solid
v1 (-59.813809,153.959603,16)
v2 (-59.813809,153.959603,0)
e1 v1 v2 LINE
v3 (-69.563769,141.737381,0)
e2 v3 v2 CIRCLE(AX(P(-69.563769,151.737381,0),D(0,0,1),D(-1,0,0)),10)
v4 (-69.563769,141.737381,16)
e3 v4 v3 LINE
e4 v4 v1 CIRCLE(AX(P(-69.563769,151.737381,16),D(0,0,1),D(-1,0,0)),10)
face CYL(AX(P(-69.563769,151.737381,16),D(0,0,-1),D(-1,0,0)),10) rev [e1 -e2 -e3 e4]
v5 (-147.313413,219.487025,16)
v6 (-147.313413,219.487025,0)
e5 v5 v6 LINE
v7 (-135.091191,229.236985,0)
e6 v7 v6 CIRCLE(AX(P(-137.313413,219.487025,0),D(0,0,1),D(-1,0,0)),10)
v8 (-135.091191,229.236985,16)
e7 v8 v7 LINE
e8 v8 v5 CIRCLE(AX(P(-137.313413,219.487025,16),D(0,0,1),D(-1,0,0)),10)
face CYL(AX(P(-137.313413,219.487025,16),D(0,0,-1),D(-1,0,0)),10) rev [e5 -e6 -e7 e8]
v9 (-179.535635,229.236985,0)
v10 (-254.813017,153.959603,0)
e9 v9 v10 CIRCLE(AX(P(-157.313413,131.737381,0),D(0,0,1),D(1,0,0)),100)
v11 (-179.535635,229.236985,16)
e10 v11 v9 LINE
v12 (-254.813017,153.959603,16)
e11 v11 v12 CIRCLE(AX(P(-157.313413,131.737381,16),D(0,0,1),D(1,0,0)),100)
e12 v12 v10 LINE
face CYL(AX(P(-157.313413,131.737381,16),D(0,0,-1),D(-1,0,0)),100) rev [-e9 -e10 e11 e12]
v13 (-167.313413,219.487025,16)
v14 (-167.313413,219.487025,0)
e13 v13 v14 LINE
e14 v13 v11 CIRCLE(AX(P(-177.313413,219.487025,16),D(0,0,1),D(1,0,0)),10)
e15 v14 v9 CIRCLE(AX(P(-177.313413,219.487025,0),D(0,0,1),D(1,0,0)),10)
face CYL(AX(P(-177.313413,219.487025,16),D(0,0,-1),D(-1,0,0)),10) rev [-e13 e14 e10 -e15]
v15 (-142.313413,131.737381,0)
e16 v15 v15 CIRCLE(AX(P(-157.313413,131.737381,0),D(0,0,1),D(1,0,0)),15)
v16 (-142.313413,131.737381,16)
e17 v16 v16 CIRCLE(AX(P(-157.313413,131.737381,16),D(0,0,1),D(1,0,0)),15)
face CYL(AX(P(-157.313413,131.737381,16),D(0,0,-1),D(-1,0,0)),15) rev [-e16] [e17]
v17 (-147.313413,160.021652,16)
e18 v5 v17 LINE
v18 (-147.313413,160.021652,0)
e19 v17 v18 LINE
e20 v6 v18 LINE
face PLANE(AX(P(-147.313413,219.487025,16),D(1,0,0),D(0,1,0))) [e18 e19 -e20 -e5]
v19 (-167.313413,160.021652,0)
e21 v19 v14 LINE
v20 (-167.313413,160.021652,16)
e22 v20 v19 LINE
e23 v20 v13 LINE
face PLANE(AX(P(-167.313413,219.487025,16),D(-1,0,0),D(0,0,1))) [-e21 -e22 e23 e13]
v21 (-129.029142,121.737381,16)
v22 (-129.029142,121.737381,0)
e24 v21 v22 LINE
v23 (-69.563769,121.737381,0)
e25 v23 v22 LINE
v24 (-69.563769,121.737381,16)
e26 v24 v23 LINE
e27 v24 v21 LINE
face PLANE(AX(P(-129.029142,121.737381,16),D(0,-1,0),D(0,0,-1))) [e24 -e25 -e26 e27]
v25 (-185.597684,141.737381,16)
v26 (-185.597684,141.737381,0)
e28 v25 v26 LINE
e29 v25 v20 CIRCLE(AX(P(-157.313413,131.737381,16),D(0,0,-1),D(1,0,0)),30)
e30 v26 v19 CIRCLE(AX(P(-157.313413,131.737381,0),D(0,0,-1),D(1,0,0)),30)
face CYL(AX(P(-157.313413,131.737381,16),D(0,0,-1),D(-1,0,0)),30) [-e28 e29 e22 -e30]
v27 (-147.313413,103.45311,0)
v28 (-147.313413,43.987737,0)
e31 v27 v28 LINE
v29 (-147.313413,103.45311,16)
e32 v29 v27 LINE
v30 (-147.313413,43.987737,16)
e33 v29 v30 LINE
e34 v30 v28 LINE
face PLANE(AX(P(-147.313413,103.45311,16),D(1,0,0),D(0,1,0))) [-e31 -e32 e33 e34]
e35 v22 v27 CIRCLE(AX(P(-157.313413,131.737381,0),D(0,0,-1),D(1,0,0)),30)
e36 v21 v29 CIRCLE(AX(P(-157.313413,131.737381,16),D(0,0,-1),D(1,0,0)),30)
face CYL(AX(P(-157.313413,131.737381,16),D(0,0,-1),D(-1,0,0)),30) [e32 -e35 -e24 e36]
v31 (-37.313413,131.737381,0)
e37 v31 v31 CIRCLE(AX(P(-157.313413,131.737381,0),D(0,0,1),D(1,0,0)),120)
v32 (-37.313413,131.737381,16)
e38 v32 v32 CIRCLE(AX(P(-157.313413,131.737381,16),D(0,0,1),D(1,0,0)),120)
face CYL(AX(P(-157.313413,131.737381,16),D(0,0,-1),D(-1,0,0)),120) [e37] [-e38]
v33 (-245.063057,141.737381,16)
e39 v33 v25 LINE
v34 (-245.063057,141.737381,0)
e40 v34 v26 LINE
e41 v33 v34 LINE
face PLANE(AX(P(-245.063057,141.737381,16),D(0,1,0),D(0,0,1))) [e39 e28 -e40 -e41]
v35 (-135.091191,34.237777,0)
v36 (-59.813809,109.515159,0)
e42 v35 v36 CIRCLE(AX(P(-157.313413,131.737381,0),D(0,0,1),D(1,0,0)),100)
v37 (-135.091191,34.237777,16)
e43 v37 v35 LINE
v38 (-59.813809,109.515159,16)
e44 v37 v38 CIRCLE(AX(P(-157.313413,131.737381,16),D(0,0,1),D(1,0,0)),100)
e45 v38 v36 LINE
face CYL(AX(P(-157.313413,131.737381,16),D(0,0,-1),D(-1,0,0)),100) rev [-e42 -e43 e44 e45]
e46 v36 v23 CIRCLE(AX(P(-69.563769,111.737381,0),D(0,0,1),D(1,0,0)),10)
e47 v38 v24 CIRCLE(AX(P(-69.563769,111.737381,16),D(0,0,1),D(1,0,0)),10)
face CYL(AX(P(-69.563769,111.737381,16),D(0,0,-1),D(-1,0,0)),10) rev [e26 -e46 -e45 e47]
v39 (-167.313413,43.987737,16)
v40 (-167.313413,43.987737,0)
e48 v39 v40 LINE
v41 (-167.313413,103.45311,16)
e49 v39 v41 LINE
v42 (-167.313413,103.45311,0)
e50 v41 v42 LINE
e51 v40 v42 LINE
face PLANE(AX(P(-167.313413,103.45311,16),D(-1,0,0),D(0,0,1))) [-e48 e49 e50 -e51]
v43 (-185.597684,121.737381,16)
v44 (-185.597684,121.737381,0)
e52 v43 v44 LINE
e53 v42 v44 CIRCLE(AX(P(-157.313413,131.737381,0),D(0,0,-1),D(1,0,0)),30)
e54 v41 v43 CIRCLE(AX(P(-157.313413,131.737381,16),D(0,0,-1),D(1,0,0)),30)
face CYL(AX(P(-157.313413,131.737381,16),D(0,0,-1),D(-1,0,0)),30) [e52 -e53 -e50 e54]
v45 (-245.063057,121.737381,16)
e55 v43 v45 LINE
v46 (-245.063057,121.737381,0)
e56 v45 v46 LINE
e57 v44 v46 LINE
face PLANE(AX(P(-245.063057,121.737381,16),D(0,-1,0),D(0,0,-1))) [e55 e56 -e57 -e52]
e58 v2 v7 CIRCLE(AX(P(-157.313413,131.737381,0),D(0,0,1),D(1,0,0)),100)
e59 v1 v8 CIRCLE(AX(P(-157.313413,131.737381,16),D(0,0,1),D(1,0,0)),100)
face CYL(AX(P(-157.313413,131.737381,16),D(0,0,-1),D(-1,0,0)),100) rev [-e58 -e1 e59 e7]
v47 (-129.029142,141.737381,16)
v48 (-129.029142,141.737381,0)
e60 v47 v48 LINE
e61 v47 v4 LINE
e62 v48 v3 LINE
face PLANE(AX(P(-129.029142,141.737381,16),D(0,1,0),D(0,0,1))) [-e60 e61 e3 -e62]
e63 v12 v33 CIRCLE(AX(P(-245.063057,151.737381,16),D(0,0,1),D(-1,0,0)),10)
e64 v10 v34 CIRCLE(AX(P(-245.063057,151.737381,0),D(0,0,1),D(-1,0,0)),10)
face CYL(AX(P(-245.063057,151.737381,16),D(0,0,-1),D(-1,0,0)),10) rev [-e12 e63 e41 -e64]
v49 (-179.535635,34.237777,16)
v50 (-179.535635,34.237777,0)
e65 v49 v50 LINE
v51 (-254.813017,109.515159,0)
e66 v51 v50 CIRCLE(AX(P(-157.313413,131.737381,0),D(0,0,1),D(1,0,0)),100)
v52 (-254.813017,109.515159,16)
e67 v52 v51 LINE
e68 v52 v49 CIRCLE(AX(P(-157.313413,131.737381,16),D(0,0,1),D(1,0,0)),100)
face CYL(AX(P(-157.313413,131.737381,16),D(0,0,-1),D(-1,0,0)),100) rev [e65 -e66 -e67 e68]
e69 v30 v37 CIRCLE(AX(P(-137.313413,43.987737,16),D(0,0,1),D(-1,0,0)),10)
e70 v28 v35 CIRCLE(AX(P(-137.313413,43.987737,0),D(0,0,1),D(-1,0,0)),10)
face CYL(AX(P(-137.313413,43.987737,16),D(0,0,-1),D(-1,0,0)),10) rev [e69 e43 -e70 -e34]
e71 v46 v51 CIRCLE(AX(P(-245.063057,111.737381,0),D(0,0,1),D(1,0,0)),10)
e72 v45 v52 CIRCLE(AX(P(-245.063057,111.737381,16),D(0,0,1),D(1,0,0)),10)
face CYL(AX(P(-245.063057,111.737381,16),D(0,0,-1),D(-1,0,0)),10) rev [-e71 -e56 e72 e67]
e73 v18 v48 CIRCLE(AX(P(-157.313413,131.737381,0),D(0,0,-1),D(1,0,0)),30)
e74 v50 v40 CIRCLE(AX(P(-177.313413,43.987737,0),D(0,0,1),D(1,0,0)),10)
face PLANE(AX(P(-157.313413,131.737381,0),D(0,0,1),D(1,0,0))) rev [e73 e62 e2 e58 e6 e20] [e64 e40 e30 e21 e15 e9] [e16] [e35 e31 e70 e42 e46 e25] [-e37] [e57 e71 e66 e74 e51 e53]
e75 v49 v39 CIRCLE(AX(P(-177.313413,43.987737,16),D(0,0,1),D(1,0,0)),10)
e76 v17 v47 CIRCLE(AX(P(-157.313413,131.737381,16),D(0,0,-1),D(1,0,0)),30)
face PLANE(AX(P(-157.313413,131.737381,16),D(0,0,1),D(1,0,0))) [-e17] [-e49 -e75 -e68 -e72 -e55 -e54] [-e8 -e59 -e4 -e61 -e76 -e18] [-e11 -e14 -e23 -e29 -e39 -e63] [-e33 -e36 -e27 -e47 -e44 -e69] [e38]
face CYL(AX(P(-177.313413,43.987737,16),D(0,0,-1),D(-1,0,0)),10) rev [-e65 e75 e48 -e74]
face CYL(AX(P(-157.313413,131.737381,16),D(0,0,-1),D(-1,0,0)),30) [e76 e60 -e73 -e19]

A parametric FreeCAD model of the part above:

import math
import FreeCAD as App
import Part
import Sketcher
from FreeCAD import Vector
Q = App.Units.Quantity

doc = App.newDocument("Part")
body = doc.addObject("PartDesign::Body", "Body")

# Sketch on XY plane
sketch1 = body.newObject("Sketcher::SketchObject", "Sketch")
sketch1.AttachmentSupport = (doc.getObject("XY_Plane"), [""])
sketch1.MapMode = "FlatFace"
sketch1.addGeometry([
    Part.Circle(Vector(-157, 132, 0), Vector(0, 0, 1), 120),  # 0
    Part.ArcOfCircle(Part.Circle(Vector(-157, 132, 0), Vector(0, 0, 1), 30), math.radians(-161), math.radians(-109)),  # 1
    Part.LineSegment(Vector(-167, 103, 0), Vector(-167, 44, 0)),  # 2
    Part.ArcOfCircle(Part.Circle(Vector(-177, 44, 0), Vector(0, 0, 1), 10), math.radians(-103), math.radians(0)),  # 3
    Part.ArcOfCircle(Part.Circle(Vector(-157, 132, 0), Vector(0, 0, 1), 100), math.radians(-167), math.radians(-103)),  # 4
    Part.ArcOfCircle(Part.Circle(Vector(-245, 112, 0), Vector(0, 0, 1), 10), math.radians(90), math.radians(193)),  # 5
    Part.LineSegment(Vector(-245, 122, 0), Vector(-186, 122, 0)),  # 6
    Part.Circle(Vector(-157, 132, 0), Vector(0, 0, 1), 15),  # 7
    Part.LineSegment(Vector(-147, 44, 0), Vector(-147, 103, 0)),  # 8
    Part.ArcOfCircle(Part.Circle(Vector(-157, 132, 0), Vector(0, 0, 1), 30), math.radians(-71), math.radians(-19)),  # 9
    Part.LineSegment(Vector(-129, 122, 0), Vector(-70, 122, 0)),  # 10
    Part.ArcOfCircle(Part.Circle(Vector(-70, 112, 0), Vector(0, 0, 1), 10), math.radians(-13), math.radians(90)),  # 11
    Part.ArcOfCircle(Part.Circle(Vector(-157, 132, 0), Vector(0, 0, 1), 100), math.radians(-77), math.radians(-13)),  # 12
    Part.ArcOfCircle(Part.Circle(Vector(-137, 44, 0), Vector(0, 0, 1), 10), math.radians(-180), math.radians(-77)),  # 13
    Part.LineSegment(Vector(-186, 142, 0), Vector(-245, 142, 0)),  # 14
    Part.ArcOfCircle(Part.Circle(Vector(-245, 152, 0), Vector(0, 0, 1), 10), math.radians(167), math.radians(270)),  # 15
    Part.ArcOfCircle(Part.Circle(Vector(-157, 132, 0), Vector(0, 0, 1), 100), math.radians(103), math.radians(167)),  # 16
    Part.ArcOfCircle(Part.Circle(Vector(-177, 219, 0), Vector(0, 0, 1), 10), math.radians(0), math.radians(103)),  # 17
    Part.LineSegment(Vector(-167, 219, 0), Vector(-167, 160, 0)),  # 18
    Part.ArcOfCircle(Part.Circle(Vector(-157, 132, 0), Vector(0, 0, 1), 30), math.radians(109), math.radians(161)),  # 19
    Part.LineSegment(Vector(-147, 160, 0), Vector(-147, 219, 0)),  # 20
    Part.ArcOfCircle(Part.Circle(Vector(-137, 219, 0), Vector(0, 0, 1), 10), math.radians(77), math.radians(180)),  # 21
    Part.ArcOfCircle(Part.Circle(Vector(-157, 132, 0), Vector(0, 0, 1), 100), math.radians(13), math.radians(77)),  # 22
    Part.ArcOfCircle(Part.Circle(Vector(-70, 152, 0), Vector(0, 0, 1), 10), math.radians(-90), math.radians(13)),  # 23
    Part.LineSegment(Vector(-70, 142, 0), Vector(-129, 142, 0)),  # 24
    Part.ArcOfCircle(Part.Circle(Vector(-157, 132, 0), Vector(0, 0, 1), 30), math.radians(19), math.radians(71)),  # 25
], False)
sketch1.addConstraint([
    Sketcher.Constraint("Coincident", 1, 2, 2, 1),
    Sketcher.Constraint("Tangent", 2, 2, 3, 2),
    Sketcher.Constraint("Tangent", 3, 1, 4, 2),
    Sketcher.Constraint("Tangent", 4, 1, 5, 2),
    Sketcher.Constraint("Tangent", 5, 1, 6, 1),
    Sketcher.Constraint("Coincident", 6, 2, 1, 1),
    Sketcher.Constraint("Coincident", 8, 2, 9, 1),
    Sketcher.Constraint("Coincident", 9, 2, 10, 1),
    Sketcher.Constraint("Tangent", 10, 2, 11, 2),
    Sketcher.Constraint("Tangent", 11, 1, 12, 2),
    Sketcher.Constraint("Tangent", 12, 1, 13, 2),
    Sketcher.Constraint("Tangent", 13, 1, 8, 1),
    Sketcher.Constraint("Tangent", 14, 2, 15, 2),
    Sketcher.Constraint("Tangent", 15, 1, 16, 2),
    Sketcher.Constraint("Tangent", 16, 1, 17, 2),
    Sketcher.Constraint("Tangent", 17, 1, 18, 1),
    Sketcher.Constraint("Coincident", 18, 2, 19, 1),
    Sketcher.Constraint("Coincident", 19, 2, 14, 1),
    Sketcher.Constraint("Tangent", 20, 2, 21, 2),
    Sketcher.Constraint("Tangent", 21, 1, 22, 2),
    Sketcher.Constraint("Tangent", 22, 1, 23, 2),
    Sketcher.Constraint("Tangent", 23, 1, 24, 1),
    Sketcher.Constraint("Coincident", 24, 2, 25, 1),
    Sketcher.Constraint("Coincident", 25, 2, 20, 1),
    Sketcher.Constraint("Vertical", 2),
    Sketcher.Constraint("Horizontal", 6),
    Sketcher.Constraint("Vertical", 8),
    Sketcher.Constraint("Horizontal", 10),
    Sketcher.Constraint("Horizontal", 14),
    Sketcher.Constraint("Vertical", 18),
    Sketcher.Constraint("Vertical", 20),
    Sketcher.Constraint("Horizontal", 24),
    Sketcher.Constraint("Coincident", 1, 3, 0, 3),
    Sketcher.Constraint("Coincident", 4, 3, 0, 3),
    Sketcher.Constraint("Coincident", 7, 3, 0, 3),
    Sketcher.Constraint("Coincident", 9, 3, 0, 3),
    Sketcher.Constraint("Coincident", 12, 3, 0, 3),
    Sketcher.Constraint("Coincident", 16, 3, 0, 3),
    Sketcher.Constraint("Coincident", 19, 3, 0, 3),
    Sketcher.Constraint("Coincident", 22, 3, 0, 3),
    Sketcher.Constraint("Coincident", 25, 3, 0, 3),
    Sketcher.Constraint("Equal", 3, 5),
    Sketcher.Constraint("Equal", 1, 9),
    Sketcher.Constraint("Equal", 5, 11),
    Sketcher.Constraint("Equal", 4, 12),
    Sketcher.Constraint("Equal", 11, 13),
    Sketcher.Constraint("Equal", 13, 15),
    Sketcher.Constraint("Equal", 12, 16),
    Sketcher.Constraint("Equal", 15, 17),
    Sketcher.Constraint("Equal", 9, 19),
    Sketcher.Constraint("Equal", 17, 21),
    Sketcher.Constraint("Equal", 16, 22),
    Sketcher.Constraint("Equal", 21, 23),
    Sketcher.Constraint("Equal", 19, 25),
    Sketcher.Constraint("Horizontal", 5, 3, 11, 3),
    Sketcher.Constraint("Horizontal", 3, 3, 13, 3),
    Sketcher.Constraint("Horizontal", 17, 3, 21, 3),
    Sketcher.Constraint("Horizontal", 15, 3, 23, 3),
    Sketcher.Constraint("Vertical", 5, 3, 15, 3),
    Sketcher.Constraint("Vertical", 3, 3, 17, 3),
    Sketcher.Constraint("Equal", 24, 2),
    Sketcher.Constraint("Diameter", 0, Q("240 mm")),
    Sketcher.Constraint("Diameter", 7, Q("30 mm")),
    Sketcher.Constraint("Radius", 1, Q("30 mm")),
    Sketcher.Constraint("Radius", 3, Q("10 mm")),
    Sketcher.Constraint("Radius", 4, Q("100 mm")),
    Sketcher.Constraint("DistanceX", 3, 3, 0, 3, Q("20 mm")),
    Sketcher.Constraint("DistanceY", -1, 1, 0, 3, Q("131.737381 mm")),
    Sketcher.Constraint("DistanceX", 11, 3, -1, 1, Q("69.563769 mm")),
])
pad1 = body.newObject("PartDesign::Pad", "Pad")
pad1.Profile = sketch1
pad1.Length = 16

doc.recompute()
